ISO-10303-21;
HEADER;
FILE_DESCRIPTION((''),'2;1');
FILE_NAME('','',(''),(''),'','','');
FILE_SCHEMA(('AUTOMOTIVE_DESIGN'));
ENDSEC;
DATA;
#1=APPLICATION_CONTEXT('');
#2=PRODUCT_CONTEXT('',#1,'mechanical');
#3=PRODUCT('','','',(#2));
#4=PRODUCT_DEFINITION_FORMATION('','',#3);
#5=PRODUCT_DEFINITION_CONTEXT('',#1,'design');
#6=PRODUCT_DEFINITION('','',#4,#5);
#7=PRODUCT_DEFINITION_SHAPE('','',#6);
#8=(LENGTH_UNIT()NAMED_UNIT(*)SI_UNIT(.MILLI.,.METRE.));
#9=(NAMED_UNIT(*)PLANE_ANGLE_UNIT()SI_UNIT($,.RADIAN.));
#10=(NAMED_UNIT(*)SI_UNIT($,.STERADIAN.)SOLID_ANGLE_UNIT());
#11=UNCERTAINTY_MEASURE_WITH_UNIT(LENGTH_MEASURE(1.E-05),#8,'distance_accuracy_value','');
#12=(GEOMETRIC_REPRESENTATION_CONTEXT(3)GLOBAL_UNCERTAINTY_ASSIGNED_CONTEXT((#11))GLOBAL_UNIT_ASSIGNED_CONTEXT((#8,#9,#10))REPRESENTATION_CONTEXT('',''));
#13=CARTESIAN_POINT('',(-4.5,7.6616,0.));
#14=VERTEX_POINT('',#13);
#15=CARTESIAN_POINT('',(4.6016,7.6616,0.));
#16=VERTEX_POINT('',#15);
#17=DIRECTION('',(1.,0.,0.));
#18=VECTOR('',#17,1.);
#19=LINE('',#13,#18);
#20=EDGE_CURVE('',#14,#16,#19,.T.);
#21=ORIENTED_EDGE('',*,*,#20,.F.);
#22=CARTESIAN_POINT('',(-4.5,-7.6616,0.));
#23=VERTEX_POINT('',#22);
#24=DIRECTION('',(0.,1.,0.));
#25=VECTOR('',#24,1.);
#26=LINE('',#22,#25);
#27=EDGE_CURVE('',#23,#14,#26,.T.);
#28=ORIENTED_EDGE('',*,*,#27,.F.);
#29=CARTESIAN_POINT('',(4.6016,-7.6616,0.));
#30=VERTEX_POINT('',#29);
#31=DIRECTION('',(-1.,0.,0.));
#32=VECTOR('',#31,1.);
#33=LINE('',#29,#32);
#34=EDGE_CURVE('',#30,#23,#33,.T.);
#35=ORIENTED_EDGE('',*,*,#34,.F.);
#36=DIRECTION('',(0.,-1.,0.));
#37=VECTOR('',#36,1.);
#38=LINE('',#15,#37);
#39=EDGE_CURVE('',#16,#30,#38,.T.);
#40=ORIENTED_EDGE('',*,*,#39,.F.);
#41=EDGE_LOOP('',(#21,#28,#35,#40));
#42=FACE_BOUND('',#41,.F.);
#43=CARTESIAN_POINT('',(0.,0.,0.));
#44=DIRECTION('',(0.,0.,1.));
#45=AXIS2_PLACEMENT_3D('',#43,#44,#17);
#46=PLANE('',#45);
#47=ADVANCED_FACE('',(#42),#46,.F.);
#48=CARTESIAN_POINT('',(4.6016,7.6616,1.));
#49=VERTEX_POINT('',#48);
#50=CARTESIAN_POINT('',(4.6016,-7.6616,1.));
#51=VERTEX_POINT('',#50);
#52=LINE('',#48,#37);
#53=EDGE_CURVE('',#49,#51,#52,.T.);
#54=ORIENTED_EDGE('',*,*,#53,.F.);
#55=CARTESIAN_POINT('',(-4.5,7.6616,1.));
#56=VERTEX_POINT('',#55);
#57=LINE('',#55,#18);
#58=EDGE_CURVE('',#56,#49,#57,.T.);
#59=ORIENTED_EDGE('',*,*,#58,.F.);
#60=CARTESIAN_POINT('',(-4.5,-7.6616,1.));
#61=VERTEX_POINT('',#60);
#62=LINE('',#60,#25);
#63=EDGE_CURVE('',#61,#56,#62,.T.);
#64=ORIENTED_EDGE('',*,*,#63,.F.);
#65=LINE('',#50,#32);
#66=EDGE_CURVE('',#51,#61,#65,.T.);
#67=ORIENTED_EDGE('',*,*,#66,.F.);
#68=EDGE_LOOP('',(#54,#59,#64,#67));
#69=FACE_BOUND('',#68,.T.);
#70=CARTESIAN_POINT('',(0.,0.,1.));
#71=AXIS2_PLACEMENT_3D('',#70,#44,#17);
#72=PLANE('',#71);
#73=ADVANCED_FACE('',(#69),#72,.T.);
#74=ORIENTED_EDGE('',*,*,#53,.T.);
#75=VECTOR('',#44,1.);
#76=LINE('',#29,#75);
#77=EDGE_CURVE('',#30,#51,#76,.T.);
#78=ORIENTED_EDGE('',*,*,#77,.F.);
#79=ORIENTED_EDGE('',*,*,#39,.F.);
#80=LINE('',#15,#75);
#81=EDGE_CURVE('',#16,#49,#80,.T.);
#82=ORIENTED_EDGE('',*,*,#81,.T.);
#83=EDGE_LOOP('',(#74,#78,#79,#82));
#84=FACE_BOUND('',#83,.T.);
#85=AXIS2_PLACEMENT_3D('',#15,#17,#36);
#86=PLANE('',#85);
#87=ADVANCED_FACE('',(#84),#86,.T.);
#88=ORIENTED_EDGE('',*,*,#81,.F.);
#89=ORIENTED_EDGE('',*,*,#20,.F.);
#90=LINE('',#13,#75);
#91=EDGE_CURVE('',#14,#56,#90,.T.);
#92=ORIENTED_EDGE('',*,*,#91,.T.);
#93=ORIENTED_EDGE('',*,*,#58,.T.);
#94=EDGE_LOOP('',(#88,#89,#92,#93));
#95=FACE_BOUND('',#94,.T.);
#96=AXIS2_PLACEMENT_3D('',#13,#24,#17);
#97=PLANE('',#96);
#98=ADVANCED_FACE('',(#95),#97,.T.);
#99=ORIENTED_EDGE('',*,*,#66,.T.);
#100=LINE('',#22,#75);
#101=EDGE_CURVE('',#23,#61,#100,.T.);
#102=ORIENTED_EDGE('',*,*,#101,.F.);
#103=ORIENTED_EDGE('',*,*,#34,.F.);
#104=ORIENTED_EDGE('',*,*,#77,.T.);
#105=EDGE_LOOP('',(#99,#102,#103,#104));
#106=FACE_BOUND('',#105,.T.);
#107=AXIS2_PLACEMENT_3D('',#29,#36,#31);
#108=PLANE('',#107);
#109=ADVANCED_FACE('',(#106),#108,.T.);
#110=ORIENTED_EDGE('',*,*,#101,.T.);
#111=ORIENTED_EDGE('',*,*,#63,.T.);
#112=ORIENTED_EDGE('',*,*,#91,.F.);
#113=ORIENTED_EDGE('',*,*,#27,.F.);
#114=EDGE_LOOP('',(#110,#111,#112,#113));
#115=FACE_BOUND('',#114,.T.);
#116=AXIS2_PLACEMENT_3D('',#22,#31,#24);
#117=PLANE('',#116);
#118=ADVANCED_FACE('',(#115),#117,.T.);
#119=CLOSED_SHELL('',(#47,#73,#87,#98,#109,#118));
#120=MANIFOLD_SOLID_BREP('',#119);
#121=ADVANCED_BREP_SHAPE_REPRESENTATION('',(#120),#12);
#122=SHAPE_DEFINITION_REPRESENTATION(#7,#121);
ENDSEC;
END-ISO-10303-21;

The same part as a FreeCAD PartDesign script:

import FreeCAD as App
import Part
import Sketcher

V = App.Vector
Q = App.Units.Quantity


def add_polygon(sketch, points):
    """Adds a closed chain of lines whose ends are joined by coincident constraints."""
    first, n = sketch.GeometryCount, len(points)
    for a, b in zip(points, points[1:] + points[:1]):
        sketch.addGeometry(Part.LineSegment(App.Vector(*a, 0), App.Vector(*b, 0)), False)
    for i in range(n):
        sketch.addConstraint(Sketcher.Constraint("Coincident", first + i, 2, first + (i + 1) % n, 1))

doc = App.newDocument("Part")
body = doc.addObject("PartDesign::Body", "Body")

sketch1 = body.newObject("Sketcher::SketchObject", "Sketch")
sketch1.AttachmentSupport = (doc.getObject("XY_Plane"), [""])
sketch1.MapMode = "FlatFace"
add_polygon(sketch1, [(5, 8), (-4, 8), (-4, -8), (5, -8)])
sketch1.addConstraint(Sketcher.Constraint("Horizontal", 0))
sketch1.addConstraint(Sketcher.Constraint("Vertical", 1))
sketch1.addConstraint(Sketcher.Constraint("Horizontal", 2))
sketch1.addConstraint(Sketcher.Constraint("Vertical", 3))
sketch1.addConstraint(Sketcher.Constraint("DistanceX", 0, 2, -1, 1, Q("4.5 mm")))
sketch1.addConstraint(Sketcher.Constraint("DistanceX", 0, 2, 0, 1, Q("9.1016 mm")))
sketch1.addConstraint(Sketcher.Constraint("DistanceY", 1, 2, 1, 1, Q("15.3232 mm")))
sketch1.addConstraint(Sketcher.Constraint("DistanceY", -1, 1, 0, 2, Q("7.6616 mm")))
pad1 = body.newObject("PartDesign::Pad", "Pad")
pad1.Profile = sketch1
pad1.Length = 1

doc.recompute()
